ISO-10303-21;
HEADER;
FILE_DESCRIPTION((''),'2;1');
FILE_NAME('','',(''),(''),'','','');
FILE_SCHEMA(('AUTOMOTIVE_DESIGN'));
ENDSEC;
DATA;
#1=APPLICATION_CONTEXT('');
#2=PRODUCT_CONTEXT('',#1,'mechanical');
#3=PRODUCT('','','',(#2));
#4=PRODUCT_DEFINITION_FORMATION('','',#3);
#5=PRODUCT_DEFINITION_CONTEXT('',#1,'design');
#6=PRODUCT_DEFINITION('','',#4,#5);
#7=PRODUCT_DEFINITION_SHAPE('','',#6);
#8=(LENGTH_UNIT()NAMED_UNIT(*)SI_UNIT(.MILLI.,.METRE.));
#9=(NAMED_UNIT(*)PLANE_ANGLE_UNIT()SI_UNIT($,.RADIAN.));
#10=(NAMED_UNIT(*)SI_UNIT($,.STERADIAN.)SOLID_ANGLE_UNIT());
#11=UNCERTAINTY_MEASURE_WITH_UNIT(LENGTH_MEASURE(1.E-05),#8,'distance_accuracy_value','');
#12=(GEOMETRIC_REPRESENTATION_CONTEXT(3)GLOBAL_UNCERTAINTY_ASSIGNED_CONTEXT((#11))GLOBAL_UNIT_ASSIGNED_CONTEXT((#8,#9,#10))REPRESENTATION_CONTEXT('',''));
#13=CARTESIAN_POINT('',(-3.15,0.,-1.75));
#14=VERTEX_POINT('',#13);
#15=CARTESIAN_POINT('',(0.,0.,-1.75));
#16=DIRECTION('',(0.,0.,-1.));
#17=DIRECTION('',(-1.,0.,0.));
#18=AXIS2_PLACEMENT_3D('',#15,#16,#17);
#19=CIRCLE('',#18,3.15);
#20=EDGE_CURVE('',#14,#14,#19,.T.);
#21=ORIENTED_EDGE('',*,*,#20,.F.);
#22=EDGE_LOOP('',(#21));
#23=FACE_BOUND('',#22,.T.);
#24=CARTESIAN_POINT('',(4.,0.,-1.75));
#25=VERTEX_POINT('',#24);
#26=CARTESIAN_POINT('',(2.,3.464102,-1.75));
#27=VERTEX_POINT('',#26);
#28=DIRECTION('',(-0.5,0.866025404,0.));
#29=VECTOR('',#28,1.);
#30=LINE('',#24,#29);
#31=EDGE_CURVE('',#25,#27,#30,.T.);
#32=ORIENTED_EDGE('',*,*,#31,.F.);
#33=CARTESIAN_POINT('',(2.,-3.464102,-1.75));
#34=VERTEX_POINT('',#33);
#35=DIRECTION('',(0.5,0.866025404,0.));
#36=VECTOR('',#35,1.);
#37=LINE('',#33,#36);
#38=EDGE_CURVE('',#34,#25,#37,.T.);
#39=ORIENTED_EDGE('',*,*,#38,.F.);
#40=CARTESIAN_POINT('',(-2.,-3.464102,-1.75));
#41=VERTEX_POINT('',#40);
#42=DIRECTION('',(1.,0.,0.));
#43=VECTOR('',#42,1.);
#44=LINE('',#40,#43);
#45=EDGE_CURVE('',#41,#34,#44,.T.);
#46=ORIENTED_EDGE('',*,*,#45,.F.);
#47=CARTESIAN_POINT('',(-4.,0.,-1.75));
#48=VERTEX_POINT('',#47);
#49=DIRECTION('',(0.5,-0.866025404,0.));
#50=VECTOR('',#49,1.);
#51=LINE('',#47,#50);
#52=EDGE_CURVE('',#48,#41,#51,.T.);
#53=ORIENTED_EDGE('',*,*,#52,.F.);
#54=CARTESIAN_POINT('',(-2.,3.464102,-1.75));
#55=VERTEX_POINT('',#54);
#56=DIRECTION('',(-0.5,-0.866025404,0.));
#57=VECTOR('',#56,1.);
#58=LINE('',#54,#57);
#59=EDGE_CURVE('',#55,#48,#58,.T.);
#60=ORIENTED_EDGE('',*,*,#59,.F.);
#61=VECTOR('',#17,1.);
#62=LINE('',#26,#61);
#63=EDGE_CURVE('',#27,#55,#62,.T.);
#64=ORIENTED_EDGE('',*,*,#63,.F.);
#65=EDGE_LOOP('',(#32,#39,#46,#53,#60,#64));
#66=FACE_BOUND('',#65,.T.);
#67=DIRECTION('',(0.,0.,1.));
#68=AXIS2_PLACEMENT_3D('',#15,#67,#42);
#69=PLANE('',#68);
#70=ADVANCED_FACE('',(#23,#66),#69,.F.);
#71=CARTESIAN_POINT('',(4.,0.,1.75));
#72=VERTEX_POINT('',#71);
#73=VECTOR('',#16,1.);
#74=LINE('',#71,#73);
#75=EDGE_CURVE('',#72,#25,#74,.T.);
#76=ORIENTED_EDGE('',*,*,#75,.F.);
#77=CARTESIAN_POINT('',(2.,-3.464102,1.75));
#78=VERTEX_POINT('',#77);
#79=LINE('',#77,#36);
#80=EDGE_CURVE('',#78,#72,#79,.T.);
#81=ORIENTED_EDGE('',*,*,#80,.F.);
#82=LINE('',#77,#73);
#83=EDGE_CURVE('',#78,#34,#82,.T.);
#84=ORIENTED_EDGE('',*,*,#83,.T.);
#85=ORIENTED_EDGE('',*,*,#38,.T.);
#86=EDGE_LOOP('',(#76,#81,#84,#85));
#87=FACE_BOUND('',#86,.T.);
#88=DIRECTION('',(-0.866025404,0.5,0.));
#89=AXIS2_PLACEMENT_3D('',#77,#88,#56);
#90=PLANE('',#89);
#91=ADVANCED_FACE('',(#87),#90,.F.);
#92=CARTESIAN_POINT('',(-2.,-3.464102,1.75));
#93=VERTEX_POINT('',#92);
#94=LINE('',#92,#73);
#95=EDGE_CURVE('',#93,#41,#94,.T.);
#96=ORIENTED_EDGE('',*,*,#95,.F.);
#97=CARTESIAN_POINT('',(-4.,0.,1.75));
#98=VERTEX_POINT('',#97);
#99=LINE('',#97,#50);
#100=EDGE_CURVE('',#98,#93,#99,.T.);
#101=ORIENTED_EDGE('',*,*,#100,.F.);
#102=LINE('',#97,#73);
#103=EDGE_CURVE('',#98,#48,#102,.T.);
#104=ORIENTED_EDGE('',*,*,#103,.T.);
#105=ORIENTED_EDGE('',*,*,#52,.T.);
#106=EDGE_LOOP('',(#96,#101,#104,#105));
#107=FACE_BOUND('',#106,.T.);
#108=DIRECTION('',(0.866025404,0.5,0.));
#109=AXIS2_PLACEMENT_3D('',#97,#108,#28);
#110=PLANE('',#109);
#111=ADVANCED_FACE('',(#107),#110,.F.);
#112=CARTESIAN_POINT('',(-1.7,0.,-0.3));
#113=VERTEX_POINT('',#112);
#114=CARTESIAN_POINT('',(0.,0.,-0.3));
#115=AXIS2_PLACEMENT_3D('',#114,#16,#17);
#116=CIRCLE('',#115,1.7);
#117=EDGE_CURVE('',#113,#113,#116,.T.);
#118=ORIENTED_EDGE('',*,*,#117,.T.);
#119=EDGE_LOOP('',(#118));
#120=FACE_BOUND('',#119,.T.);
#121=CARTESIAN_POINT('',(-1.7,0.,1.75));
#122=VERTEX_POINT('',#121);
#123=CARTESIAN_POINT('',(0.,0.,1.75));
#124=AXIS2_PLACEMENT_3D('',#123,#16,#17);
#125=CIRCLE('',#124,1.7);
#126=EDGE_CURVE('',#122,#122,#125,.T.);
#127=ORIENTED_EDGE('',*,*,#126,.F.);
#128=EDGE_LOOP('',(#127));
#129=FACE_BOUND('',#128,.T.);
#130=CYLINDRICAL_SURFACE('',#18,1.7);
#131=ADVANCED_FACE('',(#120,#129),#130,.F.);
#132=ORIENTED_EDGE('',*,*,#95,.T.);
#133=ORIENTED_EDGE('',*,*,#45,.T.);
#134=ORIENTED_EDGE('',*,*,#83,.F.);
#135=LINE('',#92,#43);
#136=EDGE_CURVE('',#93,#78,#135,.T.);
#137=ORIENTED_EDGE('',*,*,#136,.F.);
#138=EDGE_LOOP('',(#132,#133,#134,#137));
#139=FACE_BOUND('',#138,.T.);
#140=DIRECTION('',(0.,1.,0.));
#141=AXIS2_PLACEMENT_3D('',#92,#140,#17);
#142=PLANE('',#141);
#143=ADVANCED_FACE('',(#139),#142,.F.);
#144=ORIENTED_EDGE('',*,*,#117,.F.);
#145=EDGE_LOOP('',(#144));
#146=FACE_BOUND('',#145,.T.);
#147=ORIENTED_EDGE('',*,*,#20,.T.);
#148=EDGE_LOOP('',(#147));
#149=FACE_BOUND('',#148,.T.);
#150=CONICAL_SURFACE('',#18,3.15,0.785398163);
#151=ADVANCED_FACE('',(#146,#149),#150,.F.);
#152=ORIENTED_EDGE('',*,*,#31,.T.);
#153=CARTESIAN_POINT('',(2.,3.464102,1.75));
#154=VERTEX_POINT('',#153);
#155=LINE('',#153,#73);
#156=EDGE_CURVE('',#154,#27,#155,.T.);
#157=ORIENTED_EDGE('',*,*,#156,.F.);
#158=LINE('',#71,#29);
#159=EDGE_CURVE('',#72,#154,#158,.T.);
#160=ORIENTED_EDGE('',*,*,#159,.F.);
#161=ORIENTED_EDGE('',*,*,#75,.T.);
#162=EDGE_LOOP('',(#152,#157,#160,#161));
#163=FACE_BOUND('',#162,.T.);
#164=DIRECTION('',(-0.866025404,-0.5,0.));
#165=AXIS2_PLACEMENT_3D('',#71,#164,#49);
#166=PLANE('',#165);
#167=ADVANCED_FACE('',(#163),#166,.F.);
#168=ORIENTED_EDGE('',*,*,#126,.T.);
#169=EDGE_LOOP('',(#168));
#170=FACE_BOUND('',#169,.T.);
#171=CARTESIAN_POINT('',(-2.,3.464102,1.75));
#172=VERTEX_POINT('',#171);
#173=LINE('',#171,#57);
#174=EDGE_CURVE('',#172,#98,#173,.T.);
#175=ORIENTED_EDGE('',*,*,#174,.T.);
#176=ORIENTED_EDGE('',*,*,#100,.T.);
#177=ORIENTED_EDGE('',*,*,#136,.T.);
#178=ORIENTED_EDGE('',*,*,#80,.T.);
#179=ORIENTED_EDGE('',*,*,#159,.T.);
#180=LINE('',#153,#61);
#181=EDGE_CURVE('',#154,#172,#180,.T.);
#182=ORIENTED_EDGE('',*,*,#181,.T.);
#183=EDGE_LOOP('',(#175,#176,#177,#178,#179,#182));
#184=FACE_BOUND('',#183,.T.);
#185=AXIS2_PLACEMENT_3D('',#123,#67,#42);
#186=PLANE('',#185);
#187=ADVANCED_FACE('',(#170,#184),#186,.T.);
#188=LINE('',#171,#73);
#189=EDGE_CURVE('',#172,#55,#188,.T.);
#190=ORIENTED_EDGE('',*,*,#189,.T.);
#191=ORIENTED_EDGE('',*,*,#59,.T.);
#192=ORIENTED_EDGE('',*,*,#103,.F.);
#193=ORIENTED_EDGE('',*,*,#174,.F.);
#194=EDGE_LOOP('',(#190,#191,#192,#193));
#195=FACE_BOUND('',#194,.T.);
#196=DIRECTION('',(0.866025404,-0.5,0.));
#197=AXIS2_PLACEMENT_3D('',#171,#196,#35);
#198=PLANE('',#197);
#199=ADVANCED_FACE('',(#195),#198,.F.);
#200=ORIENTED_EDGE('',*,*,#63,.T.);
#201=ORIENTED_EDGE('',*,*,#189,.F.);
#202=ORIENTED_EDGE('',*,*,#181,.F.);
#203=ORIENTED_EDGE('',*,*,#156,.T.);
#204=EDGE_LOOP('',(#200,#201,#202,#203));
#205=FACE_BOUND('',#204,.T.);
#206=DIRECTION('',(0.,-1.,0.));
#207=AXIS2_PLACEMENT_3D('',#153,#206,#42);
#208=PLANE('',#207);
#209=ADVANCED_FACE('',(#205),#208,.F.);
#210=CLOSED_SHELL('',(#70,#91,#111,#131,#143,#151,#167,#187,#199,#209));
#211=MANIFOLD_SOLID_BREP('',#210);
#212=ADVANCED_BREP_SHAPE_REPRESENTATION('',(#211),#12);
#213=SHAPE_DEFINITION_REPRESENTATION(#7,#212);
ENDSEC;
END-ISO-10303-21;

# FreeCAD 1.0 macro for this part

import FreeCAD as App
import Part
import Sketcher

V = App.Vector
Q = App.Units.Quantity

doc = App.newDocument("Part")
body = doc.addObject("PartDesign::Body", "Body")

sketch1 = body.newObject("Sketcher::SketchObject", "Sketch")
sketch1.AttachmentSupport = (doc.getObject("XY_Plane"), [""])
sketch1.MapMode = "FlatFace"
sketch1.addGeometry(Part.LineSegment(V(2, -3.5, 0), V(4, 0, 0)), False)
sketch1.addGeometry(Part.LineSegment(V(4, 0, 0), V(2, 3.5, 0)), False)
sketch1.addGeometry(Part.LineSegment(V(2, 3.5, 0), V(-2, 3.5, 0)), False)
sketch1.addGeometry(Part.LineSegment(V(-2, 3.5, 0), V(-4, 0, 0)), False)
sketch1.addGeometry(Part.LineSegment(V(-4, 0, 0), V(-2, -3.5, 0)), False)
sketch1.addGeometry(Part.LineSegment(V(-2, -3.5, 0), V(2, -3.5, 0)), False)
sketch1.addConstraint(Sketcher.Constraint("Coincident", 0, 2, 1, 1))
sketch1.addConstraint(Sketcher.Constraint("Coincident", 1, 2, 2, 1))
sketch1.addConstraint(Sketcher.Constraint("Coincident", 2, 2, 3, 1))
sketch1.addConstraint(Sketcher.Constraint("Coincident", 3, 2, 4, 1))
sketch1.addConstraint(Sketcher.Constraint("Coincident", 4, 2, 5, 1))
sketch1.addConstraint(Sketcher.Constraint("Coincident", 5, 2, 0, 1))
sketch1.addConstraint(Sketcher.Constraint("Horizontal", 2))
sketch1.addConstraint(Sketcher.Constraint("Horizontal", 5))
sketch1.addConstraint(Sketcher.Constraint("Symmetric", 0, 2, 3, 2, -1, 1))
sketch1.addConstraint(Sketcher.Constraint("Symmetric", 1, 2, 4, 2, -1, 1))
sketch1.addConstraint(Sketcher.Constraint("PointOnObject", 0, 2, -1))
sketch1.addConstraint(Sketcher.Constraint("Parallel", 0, 3))
sketch1.addConstraint(Sketcher.Constraint("Vertical", 2, 2, 4, 2))
sketch1.addConstraint(Sketcher.Constraint("DistanceX", 2, 2, 2, 1, Q("4 mm")))
sketch1.addConstraint(Sketcher.Constraint("Angle", 0, Q("60 deg")))
sketch1.addConstraint(Sketcher.Constraint("Distance", 0, Q("4 mm")))
pad1 = body.newObject("PartDesign::Pad", "Pad")
pad1.Profile = sketch1
pad1.Length = 3.5
pad1.Midplane = True

sketch2 = body.newObject("Sketcher::SketchObject", "Sketch001")
sketch2.AttachmentSupport = (doc.getObject("XY_Plane"), [""])
sketch2.MapMode = "FlatFace"
sketch2.AttachmentOffset = App.Placement(V(0, 0, -1.75), App.Rotation())
sketch2.addGeometry(Part.Circle(V(0, 0, 0), V(0, 0, 1), 1.7), False)
sketch2.addConstraint(Sketcher.Constraint("Coincident", 0, 3, -1, 1))
sketch2.addConstraint(Sketcher.Constraint("Diameter", 0, Q("3.4 mm")))
doc.recompute()
hole = body.newObject("PartDesign::Hole", "Hole")
hole.Profile = sketch2
hole.ThreadType = "None"
hole.Diameter = 3.4
hole.DepthType = "Dimension"
hole.Depth = 3.5
hole.DrillPoint = "Angled"
hole.DrillPointAngle = 118
hole.HoleCutType = "Countersink"
hole.HoleCutDiameter = 6.3
hole.HoleCutCountersinkAngle = 90
hole.Reversed = True

doc.recompute()
